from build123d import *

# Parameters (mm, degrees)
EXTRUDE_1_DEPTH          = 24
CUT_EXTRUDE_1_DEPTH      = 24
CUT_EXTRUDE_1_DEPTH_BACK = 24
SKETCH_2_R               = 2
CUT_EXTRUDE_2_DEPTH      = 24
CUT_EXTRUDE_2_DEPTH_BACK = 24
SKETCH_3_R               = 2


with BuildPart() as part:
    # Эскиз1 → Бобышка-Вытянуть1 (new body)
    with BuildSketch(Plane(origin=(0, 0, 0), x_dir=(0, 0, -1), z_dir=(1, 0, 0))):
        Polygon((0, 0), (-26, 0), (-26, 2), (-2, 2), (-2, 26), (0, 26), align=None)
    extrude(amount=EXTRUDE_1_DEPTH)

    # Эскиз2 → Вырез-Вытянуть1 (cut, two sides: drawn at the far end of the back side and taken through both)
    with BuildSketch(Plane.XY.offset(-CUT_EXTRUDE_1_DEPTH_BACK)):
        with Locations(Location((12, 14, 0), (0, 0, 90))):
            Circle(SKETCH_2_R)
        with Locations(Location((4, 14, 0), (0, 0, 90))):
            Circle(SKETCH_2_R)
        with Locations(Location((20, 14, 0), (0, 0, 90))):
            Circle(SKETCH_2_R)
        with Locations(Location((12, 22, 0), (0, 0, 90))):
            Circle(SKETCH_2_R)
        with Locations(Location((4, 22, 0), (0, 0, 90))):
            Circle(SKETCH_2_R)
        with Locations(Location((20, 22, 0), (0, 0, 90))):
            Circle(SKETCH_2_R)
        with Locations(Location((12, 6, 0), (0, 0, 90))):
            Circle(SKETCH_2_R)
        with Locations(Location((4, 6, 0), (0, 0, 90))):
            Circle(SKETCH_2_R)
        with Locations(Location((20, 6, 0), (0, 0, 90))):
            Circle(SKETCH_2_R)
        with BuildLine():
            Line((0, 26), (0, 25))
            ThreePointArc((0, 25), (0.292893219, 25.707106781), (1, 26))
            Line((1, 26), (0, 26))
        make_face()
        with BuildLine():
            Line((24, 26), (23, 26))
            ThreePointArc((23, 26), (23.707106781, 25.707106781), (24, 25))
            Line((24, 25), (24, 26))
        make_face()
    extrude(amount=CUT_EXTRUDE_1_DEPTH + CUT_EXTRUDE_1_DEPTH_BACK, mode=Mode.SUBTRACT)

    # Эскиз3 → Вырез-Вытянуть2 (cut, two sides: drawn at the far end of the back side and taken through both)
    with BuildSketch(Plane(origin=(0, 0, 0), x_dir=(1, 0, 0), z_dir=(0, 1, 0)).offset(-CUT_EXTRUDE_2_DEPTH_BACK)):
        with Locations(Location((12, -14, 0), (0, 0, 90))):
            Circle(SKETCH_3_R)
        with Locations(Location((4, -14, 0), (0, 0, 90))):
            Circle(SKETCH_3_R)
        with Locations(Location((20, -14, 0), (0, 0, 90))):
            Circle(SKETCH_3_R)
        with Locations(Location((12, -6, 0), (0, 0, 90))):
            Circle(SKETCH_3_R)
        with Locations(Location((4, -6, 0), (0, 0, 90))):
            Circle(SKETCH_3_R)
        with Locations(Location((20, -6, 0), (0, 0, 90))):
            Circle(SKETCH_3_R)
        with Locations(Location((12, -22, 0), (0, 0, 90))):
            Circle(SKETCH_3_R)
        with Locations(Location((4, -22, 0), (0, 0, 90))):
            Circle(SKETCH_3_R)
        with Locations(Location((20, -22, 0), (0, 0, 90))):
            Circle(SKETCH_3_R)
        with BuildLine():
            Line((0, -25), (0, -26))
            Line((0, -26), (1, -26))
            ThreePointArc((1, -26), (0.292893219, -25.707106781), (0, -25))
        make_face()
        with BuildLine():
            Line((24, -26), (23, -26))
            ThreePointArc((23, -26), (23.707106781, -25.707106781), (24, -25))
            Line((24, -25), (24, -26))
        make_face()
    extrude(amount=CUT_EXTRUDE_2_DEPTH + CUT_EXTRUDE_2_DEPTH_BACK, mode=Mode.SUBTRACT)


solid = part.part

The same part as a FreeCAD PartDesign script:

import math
import FreeCAD as App
import Part
import Sketcher
Q = App.Units.Quantity


def add_polygon(sketch, points):
    """Adds a closed chain of lines whose ends are joined by coincident constraints."""
    first, n = sketch.GeometryCount, len(points)
    for a, b in zip(points, points[1:] + points[:1]):
        sketch.addGeometry(Part.LineSegment(App.Vector(*a, 0), App.Vector(*b, 0)), False)
    for i in range(n):
        sketch.addConstraint(Sketcher.Constraint("Coincident", first + i, 2, first + (i + 1) % n, 1))

doc = App.newDocument("Part")
params = doc.addObject("Spreadsheet::Sheet", "Params")
for row, (alias, value) in enumerate([
    ("sketch1_width", "26 mm"),
    ("sketch1_width2", "24 mm"),
    ("pad1_length", "24 mm"),
    ("sketch2_diameter", "4 mm"),
    ("sketch2_radius", "1 mm"),
    ("sketch3_diameter", "4 mm"),
    ("sketch3_radius", "1 mm"),
], start=1):
    params.set(f"A{row}", alias)
    params.set(f"B{row}", "=" + value)
    params.setAlias(f"B{row}", alias)

body = doc.addObject("PartDesign::Body", "Body")

# Sketch on YZ plane
sketch1 = body.newObject("Sketcher::SketchObject", "Sketch")
sketch1.AttachmentSupport = (doc.getObject("YZ_Plane"), [""])
sketch1.MapMode = "FlatFace"
add_polygon(sketch1, [(0, 26), (0, 0), (26, 0), (26, 2), (2, 2), (2, 26)])  # lines 0-5
sketch1.addConstraint(Sketcher.Constraint("Vertical", 0))
sketch1.addConstraint(Sketcher.Constraint("Horizontal", 1))
sketch1.addConstraint(Sketcher.Constraint("Vertical", 2))
sketch1.addConstraint(Sketcher.Constraint("Horizontal", 3))
sketch1.addConstraint(Sketcher.Constraint("Vertical", 4))
sketch1.addConstraint(Sketcher.Constraint("Horizontal", 5))
sketch1.addConstraint(Sketcher.Constraint("Coincident", 0, 2, -1, 1))
sketch1.addConstraint(Sketcher.Constraint("Equal", 1, 0))
sketch1.addConstraint(Sketcher.Constraint("Equal", 5, 2))
sketch1.addConstraint(Sketcher.Constraint("DistanceX", 1, 1, 1, 2, Q("26 mm")))
sketch1.addConstraint(Sketcher.Constraint("DistanceX", 3, 2, 3, 1, Q("24 mm")))
sketch1.setExpression("Constraints[15]", "Params.sketch1_width")
sketch1.setExpression("Constraints[16]", "Params.sketch1_width2")
pad1 = body.newObject("PartDesign::Pad", "Pad")
pad1.Profile = sketch1
pad1.setExpression("Length", "Params.pad1_length")

# Sketch on XY plane
sketch2 = body.newObject("Sketcher::SketchObject", "Sketch001")
sketch2.AttachmentSupport = (doc.getObject("XY_Plane"), [""])
sketch2.MapMode = "FlatFace"
sketch2.addGeometry(Part.Circle(App.Vector(12, 14, 0), App.Vector(0, 0, 1), 2), False)
sketch2.addGeometry(Part.Circle(App.Vector(4, 14, 0), App.Vector(0, 0, 1), 2), False)
sketch2.addGeometry(Part.Circle(App.Vector(20, 14, 0), App.Vector(0, 0, 1), 2), False)
sketch2.addGeometry(Part.Circle(App.Vector(12, 22, 0), App.Vector(0, 0, 1), 2), False)
sketch2.addGeometry(Part.Circle(App.Vector(4, 22, 0), App.Vector(0, 0, 1), 2), False)
sketch2.addGeometry(Part.Circle(App.Vector(20, 22, 0), App.Vector(0, 0, 1), 2), False)
sketch2.addGeometry(Part.Circle(App.Vector(12, 6, 0), App.Vector(0, 0, 1), 2), False)
sketch2.addGeometry(Part.Circle(App.Vector(4, 6, 0), App.Vector(0, 0, 1), 2), False)
sketch2.addGeometry(Part.Circle(App.Vector(20, 6, 0), App.Vector(0, 0, 1), 2), False)
sketch2.addGeometry(Part.LineSegment(App.Vector(0, 26, 0), App.Vector(0, 25, 0)), False)
sketch2.addGeometry(Part.ArcOfCircle(Part.Circle(App.Vector(1, 25, 0), App.Vector(0, 0, 1), 1), math.radians(90), math.radians(180)), False)
sketch2.addGeometry(Part.LineSegment(App.Vector(1, 26, 0), App.Vector(0, 26, 0)), False)
sketch2.addGeometry(Part.LineSegment(App.Vector(24, 26, 0), App.Vector(23, 26, 0)), False)
sketch2.addGeometry(Part.ArcOfCircle(Part.Circle(App.Vector(23, 25, 0), App.Vector(0, 0, 1), 1), math.radians(0), math.radians(90)), False)
sketch2.addGeometry(Part.LineSegment(App.Vector(24, 25, 0), App.Vector(24, 26, 0)), False)
sketch2.addConstraint(Sketcher.Constraint("Tangent", 9, 2, 10, 2))
sketch2.addConstraint(Sketcher.Constraint("Tangent", 10, 1, 11, 1))
sketch2.addConstraint(Sketcher.Constraint("Coincident", 11, 2, 9, 1))
sketch2.addConstraint(Sketcher.Constraint("Tangent", 12, 2, 13, 2))
sketch2.addConstraint(Sketcher.Constraint("Tangent", 13, 1, 14, 1))
sketch2.addConstraint(Sketcher.Constraint("Coincident", 14, 2, 12, 1))
sketch2.addConstraint(Sketcher.Constraint("Vertical", 9))
sketch2.addConstraint(Sketcher.Constraint("Horizontal", 11))
sketch2.addConstraint(Sketcher.Constraint("Horizontal", 12))
sketch2.addConstraint(Sketcher.Constraint("Vertical", 14))
sketch2.addConstraint(Sketcher.Constraint("Equal", 0, 1))
sketch2.addConstraint(Sketcher.Constraint("Equal", 1, 2))
sketch2.addConstraint(Sketcher.Constraint("Equal", 2, 3))
sketch2.addConstraint(Sketcher.Constraint("Equal", 3, 4))
sketch2.addConstraint(Sketcher.Constraint("Equal", 4, 5))
sketch2.addConstraint(Sketcher.Constraint("Equal", 5, 6))
sketch2.addConstraint(Sketcher.Constraint("Equal", 6, 7))
sketch2.addConstraint(Sketcher.Constraint("Equal", 7, 8))
sketch2.addConstraint(Sketcher.Constraint("Equal", 10, 13))
sketch2.addConstraint(Sketcher.Constraint("PointOnObject", 9, 2, -2))
sketch2.addConstraint(Sketcher.Constraint("Horizontal", 0, 3, 1, 3))
sketch2.addConstraint(Sketcher.Constraint("Horizontal", 1, 3, 2, 3))
sketch2.addConstraint(Sketcher.Constraint("Horizontal", 3, 3, 4, 3))
sketch2.addConstraint(Sketcher.Constraint("Horizontal", 4, 3, 5, 3))
sketch2.addConstraint(Sketcher.Constraint("Horizontal", 6, 3, 7, 3))
sketch2.addConstraint(Sketcher.Constraint("Horizontal", 7, 3, 8, 3))
sketch2.addConstraint(Sketcher.Constraint("Horizontal", 10, 3, 13, 3))
sketch2.addConstraint(Sketcher.Constraint("Vertical", 0, 3, 3, 3))
sketch2.addConstraint(Sketcher.Constraint("Vertical", 1, 3, 4, 3))
sketch2.addConstraint(Sketcher.Constraint("Vertical", 2, 3, 5, 3))
sketch2.addConstraint(Sketcher.Constraint("Vertical", 3, 3, 6, 3))
sketch2.addConstraint(Sketcher.Constraint("Vertical", 4, 3, 7, 3))
sketch2.addConstraint(Sketcher.Constraint("Vertical", 5, 3, 8, 3))
sketch2.addConstraint(Sketcher.Constraint("Diameter", 0, Q("4 mm")))
sketch2.addConstraint(Sketcher.Constraint("Radius", 10, Q("1 mm")))
sketch2.addConstraint(Sketcher.Constraint("DistanceX", -1, 1, 0, 3, Q("12 mm")))
sketch2.addConstraint(Sketcher.Constraint("DistanceY", -1, 1, 0, 3, Q("14 mm")))
sketch2.addConstraint(Sketcher.Constraint("DistanceX", -1, 1, 1, 3, Q("4 mm")))
sketch2.addConstraint(Sketcher.Constraint("DistanceX", -1, 1, 2, 3, Q("20 mm")))
sketch2.addConstraint(Sketcher.Constraint("DistanceY", -1, 1, 3, 3, Q("22 mm")))
sketch2.addConstraint(Sketcher.Constraint("DistanceY", -1, 1, 6, 3, Q("6 mm")))
sketch2.addConstraint(Sketcher.Constraint("DistanceY", -1, 1, 10, 3, Q("25 mm")))
sketch2.addConstraint(Sketcher.Constraint("DistanceX", -1, 1, 13, 3, Q("23 mm")))
sketch2.setExpression("Constraints[33]", "Params.sketch2_diameter")
sketch2.setExpression("Constraints[34]", "Params.sketch2_radius")
pocket1 = body.newObject("PartDesign::Pocket", "Pocket")
pocket1.Profile = sketch2
pocket1.Type = "ThroughAll"
pocket1.Midplane = True

# Sketch on XZ plane
sketch3 = body.newObject("Sketcher::SketchObject", "Sketch002")
sketch3.AttachmentSupport = (doc.getObject("XZ_Plane"), [""])
sketch3.MapMode = "FlatFace"
sketch3.addGeometry(Part.Circle(App.Vector(12, 14, 0), App.Vector(0, 0, 1), 2), False)
sketch3.addGeometry(Part.Circle(App.Vector(4, 14, 0), App.Vector(0, 0, 1), 2), False)
sketch3.addGeometry(Part.Circle(App.Vector(20, 14, 0), App.Vector(0, 0, 1), 2), False)
sketch3.addGeometry(Part.Circle(App.Vector(12, 6, 0), App.Vector(0, 0, 1), 2), False)
sketch3.addGeometry(Part.Circle(App.Vector(4, 6, 0), App.Vector(0, 0, 1), 2), False)
sketch3.addGeometry(Part.Circle(App.Vector(20, 6, 0), App.Vector(0, 0, 1), 2), False)
sketch3.addGeometry(Part.Circle(App.Vector(12, 22, 0), App.Vector(0, 0, 1), 2), False)
sketch3.addGeometry(Part.Circle(App.Vector(4, 22, 0), App.Vector(0, 0, 1), 2), False)
sketch3.addGeometry(Part.Circle(App.Vector(20, 22, 0), App.Vector(0, 0, 1), 2), False)
sketch3.addGeometry(Part.LineSegment(App.Vector(0, 25, 0), App.Vector(0, 26, 0)), False)
sketch3.addGeometry(Part.LineSegment(App.Vector(0, 26, 0), App.Vector(1, 26, 0)), False)
sketch3.addGeometry(Part.ArcOfCircle(Part.Circle(App.Vector(1, 25, 0), App.Vector(0, 0, 1), 1), math.radians(90), math.radians(180)), False)
sketch3.addGeometry(Part.LineSegment(App.Vector(23, 26, 0), App.Vector(24, 26, 0)), False)
sketch3.addGeometry(Part.LineSegment(App.Vector(24, 26, 0), App.Vector(24, 25, 0)), False)
sketch3.addGeometry(Part.ArcOfCircle(Part.Circle(App.Vector(23, 25, 0), App.Vector(0, 0, 1), 1), math.radians(0), math.radians(90)), False)
sketch3.addConstraint(Sketcher.Constraint("Coincident", 9, 2, 10, 1))
sketch3.addConstraint(Sketcher.Constraint("Tangent", 10, 2, 11, 1))
sketch3.addConstraint(Sketcher.Constraint("Tangent", 11, 2, 9, 1))
sketch3.addConstraint(Sketcher.Constraint("Coincident", 12, 2, 13, 1))
sketch3.addConstraint(Sketcher.Constraint("Tangent", 13, 2, 14, 1))
sketch3.addConstraint(Sketcher.Constraint("Tangent", 14, 2, 12, 1))
sketch3.addConstraint(Sketcher.Constraint("Vertical", 9))
sketch3.addConstraint(Sketcher.Constraint("Horizontal", 10))
sketch3.addConstraint(Sketcher.Constraint("Horizontal", 12))
sketch3.addConstraint(Sketcher.Constraint("Vertical", 13))
sketch3.addConstraint(Sketcher.Constraint("Equal", 0, 1))
sketch3.addConstraint(Sketcher.Constraint("Equal", 1, 2))
sketch3.addConstraint(Sketcher.Constraint("Equal", 2, 3))
sketch3.addConstraint(Sketcher.Constraint("Equal", 3, 4))
sketch3.addConstraint(Sketcher.Constraint("Equal", 4, 5))
sketch3.addConstraint(Sketcher.Constraint("Equal", 5, 6))
sketch3.addConstraint(Sketcher.Constraint("Equal", 6, 7))
sketch3.addConstraint(Sketcher.Constraint("Equal", 7, 8))
sketch3.addConstraint(Sketcher.Constraint("Equal", 11, 14))
sketch3.addConstraint(Sketcher.Constraint("PointOnObject", 9, 2, -2))
sketch3.addConstraint(Sketcher.Constraint("Horizontal", 0, 3, 1, 3))
sketch3.addConstraint(Sketcher.Constraint("Horizontal", 1, 3, 2, 3))
sketch3.addConstraint(Sketcher.Constraint("Horizontal", 3, 3, 4, 3))
sketch3.addConstraint(Sketcher.Constraint("Horizontal", 4, 3, 5, 3))
sketch3.addConstraint(Sketcher.Constraint("Horizontal", 6, 3, 7, 3))
sketch3.addConstraint(Sketcher.Constraint("Horizontal", 7, 3, 8, 3))
sketch3.addConstraint(Sketcher.Constraint("Horizontal", 11, 3, 14, 3))
sketch3.addConstraint(Sketcher.Constraint("Vertical", 0, 3, 3, 3))
sketch3.addConstraint(Sketcher.Constraint("Vertical", 1, 3, 4, 3))
sketch3.addConstraint(Sketcher.Constraint("Vertical", 2, 3, 5, 3))
sketch3.addConstraint(Sketcher.Constraint("Vertical", 3, 3, 6, 3))
sketch3.addConstraint(Sketcher.Constraint("Vertical", 4, 3, 7, 3))
sketch3.addConstraint(Sketcher.Constraint("Vertical", 5, 3, 8, 3))
sketch3.addConstraint(Sketcher.Constraint("Diameter", 0, Q("4 mm")))
sketch3.addConstraint(Sketcher.Constraint("Radius", 11, Q("1 mm")))
sketch3.addConstraint(Sketcher.Constraint("DistanceX", -1, 1, 0, 3, Q("12 mm")))
sketch3.addConstraint(Sketcher.Constraint("DistanceY", -1, 1, 0, 3, Q("14 mm")))
sketch3.addConstraint(Sketcher.Constraint("DistanceX", -1, 1, 1, 3, Q("4 mm")))
sketch3.addConstraint(Sketcher.Constraint("DistanceX", -1, 1, 2, 3, Q("20 mm")))
sketch3.addConstraint(Sketcher.Constraint("DistanceY", -1, 1, 3, 3, Q("6 mm")))
sketch3.addConstraint(Sketcher.Constraint("DistanceY", -1, 1, 6, 3, Q("22 mm")))
sketch3.addConstraint(Sketcher.Constraint("DistanceY", -1, 1, 11, 3, Q("25 mm")))
sketch3.addConstraint(Sketcher.Constraint("DistanceX", -1, 1, 14, 3, Q("23 mm")))
sketch3.setExpression("Constraints[33]", "Params.sketch3_diameter")
sketch3.setExpression("Constraints[34]", "Params.sketch3_radius")
pocket2 = body.newObject("PartDesign::Pocket", "Pocket001")
pocket2.Profile = sketch3
pocket2.Type = "ThroughAll"
pocket2.Midplane = True

doc.recompute()
